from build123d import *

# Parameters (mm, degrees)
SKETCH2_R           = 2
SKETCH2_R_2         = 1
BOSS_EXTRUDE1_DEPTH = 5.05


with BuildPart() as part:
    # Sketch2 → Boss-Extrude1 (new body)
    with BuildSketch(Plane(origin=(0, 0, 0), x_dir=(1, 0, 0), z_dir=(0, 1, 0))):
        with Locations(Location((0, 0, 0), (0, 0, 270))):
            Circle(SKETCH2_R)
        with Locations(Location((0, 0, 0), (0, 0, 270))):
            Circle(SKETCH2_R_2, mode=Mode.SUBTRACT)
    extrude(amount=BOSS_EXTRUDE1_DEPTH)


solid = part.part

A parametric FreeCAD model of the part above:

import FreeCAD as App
import Part
import Sketcher
from FreeCAD import Vector
Q = App.Units.Quantity

doc = App.newDocument("Part")
body = doc.addObject("PartDesign::Body", "Body")

# Sketch on XZ plane
sketch1 = doc.addObject("Sketcher::SketchObject", "Sketch")
body.addObject(sketch1)
sketch1.AttachmentSupport = (doc.XZ_Plane, [""])
sketch1.MapMode = "FlatFace"
sketch1.addGeometry([
    Part.Circle(Vector(0, 0, 0), Vector(0, 0, 1), 2),
    Part.Circle(Vector(0, 0, 0), Vector(0, 0, 1), 1),
], False)
sketch1.addConstraint([
    Sketcher.Constraint("Coincident", 0, 3, -1, 1),
    Sketcher.Constraint("Coincident", 1, 3, -1, 1),
    Sketcher.Constraint("Diameter", 0, Q("4 mm")),
    Sketcher.Constraint("Diameter", 1, Q("2 mm")),
])
pad1 = doc.addObject("PartDesign::Pad", "Pad")
body.addObject(pad1)
pad1.Profile = sketch1
pad1.Length = 5.05
pad1.Reversed = True

doc.recompute()
